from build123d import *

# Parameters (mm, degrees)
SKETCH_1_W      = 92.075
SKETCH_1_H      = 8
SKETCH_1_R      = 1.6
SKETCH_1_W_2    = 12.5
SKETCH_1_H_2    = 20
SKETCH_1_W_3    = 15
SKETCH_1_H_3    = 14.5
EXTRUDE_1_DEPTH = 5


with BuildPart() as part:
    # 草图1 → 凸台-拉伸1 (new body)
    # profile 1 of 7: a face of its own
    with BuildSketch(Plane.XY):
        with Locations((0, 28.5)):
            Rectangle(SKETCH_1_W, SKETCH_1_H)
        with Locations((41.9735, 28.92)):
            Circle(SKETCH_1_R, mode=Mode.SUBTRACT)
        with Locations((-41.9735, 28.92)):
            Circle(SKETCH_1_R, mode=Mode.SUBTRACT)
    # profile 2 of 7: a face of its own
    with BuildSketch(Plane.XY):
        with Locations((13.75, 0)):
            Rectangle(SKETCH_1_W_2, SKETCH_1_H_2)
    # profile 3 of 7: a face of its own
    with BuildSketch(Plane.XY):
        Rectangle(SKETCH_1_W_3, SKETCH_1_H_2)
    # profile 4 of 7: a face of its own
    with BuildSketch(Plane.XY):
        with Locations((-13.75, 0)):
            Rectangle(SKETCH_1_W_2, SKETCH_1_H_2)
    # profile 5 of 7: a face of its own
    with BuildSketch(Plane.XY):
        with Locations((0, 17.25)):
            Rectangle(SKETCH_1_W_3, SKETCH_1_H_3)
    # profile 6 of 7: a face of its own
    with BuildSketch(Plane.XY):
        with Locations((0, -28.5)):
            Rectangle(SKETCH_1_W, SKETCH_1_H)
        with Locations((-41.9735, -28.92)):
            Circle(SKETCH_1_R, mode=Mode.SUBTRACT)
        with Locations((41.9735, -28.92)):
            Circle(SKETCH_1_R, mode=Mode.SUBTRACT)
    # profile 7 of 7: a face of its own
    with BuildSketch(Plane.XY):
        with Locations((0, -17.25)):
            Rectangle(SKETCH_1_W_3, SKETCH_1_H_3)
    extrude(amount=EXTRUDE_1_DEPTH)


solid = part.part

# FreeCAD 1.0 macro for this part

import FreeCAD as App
import Part
import Sketcher

V = App.Vector
Q = App.Units.Quantity


def add_polygon(sketch, points):
    """Adds a closed chain of lines whose ends are joined by coincident constraints."""
    first, n = sketch.GeometryCount, len(points)
    for a, b in zip(points, points[1:] + points[:1]):
        sketch.addGeometry(Part.LineSegment(App.Vector(*a, 0), App.Vector(*b, 0)), False)
    for i in range(n):
        sketch.addConstraint(Sketcher.Constraint("Coincident", first + i, 2, first + (i + 1) % n, 1))

doc = App.newDocument("Part")
params = doc.addObject("Spreadsheet::Sheet", "Params")
for row, (alias, value) in enumerate([
    ("sketch1_diameter", "3.2 mm"),
    ("sketch1_height", "8 mm"),
    ("sketch1_height2", "20 mm"),
    ("sketch1_width", "12.5 mm"),
    ("sketch1_height3", "14.5 mm"),
    ("pad1_length", "5 mm"),
], start=1):
    params.set(f"A{row}", alias)
    params.set(f"B{row}", "=" + value)
    params.setAlias(f"B{row}", alias)

body = doc.addObject("PartDesign::Body", "Body")

# Sketch on XY plane
sketch1 = body.newObject("Sketcher::SketchObject", "Sketch")
sketch1.AttachmentSupport = (doc.getObject("XY_Plane"), [""])
sketch1.MapMode = "FlatFace"
add_polygon(sketch1, [(-46.0375, 32.5), (-46.0375, 24.5), (-7.5, 24.5), (-7.5, 10), (-20, 10), (-20, -10), (-7.5, -10), (-7.5, -24.5), (-46.0375, -24.5), (-46.0375, -32.5), (46.0375, -32.5), (46.0375, -24.5), (7.5, -24.5), (7.5, -10), (20, -10), (20, 10), (7.5, 10), (7.5, 24.5), (46.0375, 24.5), (46.0375, 32.5)])  # lines 0-19
sketch1.addGeometry(Part.Circle(V(-41.9735, 28.92, 0), V(0, 0, 1), 1.6), False)  # 20
sketch1.addGeometry(Part.Circle(V(41.9735, 28.92, 0), V(0, 0, 1), 1.6), False)  # 21
sketch1.addGeometry(Part.Circle(V(41.9735, -28.92, 0), V(0, 0, 1), 1.6), False)  # 22
sketch1.addGeometry(Part.Circle(V(-41.9735, -28.92, 0), V(0, 0, 1), 1.6), False)  # 23
sketch1.addConstraint(Sketcher.Constraint("Vertical", 0))
sketch1.addConstraint(Sketcher.Constraint("Horizontal", 1))
sketch1.addConstraint(Sketcher.Constraint("Vertical", 2))
sketch1.addConstraint(Sketcher.Constraint("Horizontal", 3))
sketch1.addConstraint(Sketcher.Constraint("Vertical", 4))
sketch1.addConstraint(Sketcher.Constraint("Horizontal", 5))
sketch1.addConstraint(Sketcher.Constraint("Vertical", 6))
sketch1.addConstraint(Sketcher.Constraint("Horizontal", 7))
sketch1.addConstraint(Sketcher.Constraint("Vertical", 8))
sketch1.addConstraint(Sketcher.Constraint("Horizontal", 9))
sketch1.addConstraint(Sketcher.Constraint("Vertical", 10))
sketch1.addConstraint(Sketcher.Constraint("Horizontal", 11))
sketch1.addConstraint(Sketcher.Constraint("Vertical", 12))
sketch1.addConstraint(Sketcher.Constraint("Horizontal", 13))
sketch1.addConstraint(Sketcher.Constraint("Vertical", 14))
sketch1.addConstraint(Sketcher.Constraint("Horizontal", 15))
sketch1.addConstraint(Sketcher.Constraint("Vertical", 16))
sketch1.addConstraint(Sketcher.Constraint("Horizontal", 17))
sketch1.addConstraint(Sketcher.Constraint("Vertical", 18))
sketch1.addConstraint(Sketcher.Constraint("Horizontal", 19))
sketch1.addConstraint(Sketcher.Constraint("Equal", 20, 21))
sketch1.addConstraint(Sketcher.Constraint("Equal", 21, 22))
sketch1.addConstraint(Sketcher.Constraint("Equal", 22, 23))
sketch1.addConstraint(Sketcher.Constraint("Symmetric", 20, 3, 22, 3, -1, 1))
sketch1.addConstraint(Sketcher.Constraint("Symmetric", 21, 3, 23, 3, -1, 1))
sketch1.addConstraint(Sketcher.Constraint("Symmetric", 0, 2, 10, 2, -1, 1))
sketch1.addConstraint(Sketcher.Constraint("Symmetric", 2, 2, 12, 2, -1, 1))
sketch1.addConstraint(Sketcher.Constraint("Symmetric", 4, 2, 14, 2, -1, 1))
sketch1.addConstraint(Sketcher.Constraint("Symmetric", 6, 2, 16, 2, -1, 1))
sketch1.addConstraint(Sketcher.Constraint("Symmetric", 8, 2, 18, 2, -1, 1))
sketch1.addConstraint(Sketcher.Constraint("Symmetric", 20, 3, 21, 3, -2))
sketch1.addConstraint(Sketcher.Constraint("Symmetric", 7, 2, 10, 2, -2))
sketch1.addConstraint(Sketcher.Constraint("Symmetric", 5, 2, 12, 2, -2))
sketch1.addConstraint(Sketcher.Constraint("Diameter", 20, Q("3.2 mm")))
sketch1.addConstraint(Sketcher.Constraint("DistanceY", 0, 2, 0, 1, Q("8 mm")))
sketch1.addConstraint(Sketcher.Constraint("DistanceY", 4, 2, 4, 1, Q("20 mm")))
sketch1.addConstraint(Sketcher.Constraint("DistanceX", 3, 2, 3, 1, Q("12.5 mm")))
sketch1.addConstraint(Sketcher.Constraint("DistanceY", 2, 2, 2, 1, Q("14.5 mm")))
sketch1.addConstraint(Sketcher.Constraint("DistanceX", 3, 2, -1, 1, Q("20 mm")))
sketch1.addConstraint(Sketcher.Constraint("DistanceX", 9, 1, 9, 2, Q("92.075 mm")))
sketch1.addConstraint(Sketcher.Constraint("DistanceY", -1, 1, 20, 3, Q("28.92 mm")))
sketch1.addConstraint(Sketcher.Constraint("DistanceX", 20, 3, 21, 3, Q("83.947 mm")))
sketch1.setExpression("Constraints[53]", "Params.sketch1_diameter")
sketch1.setExpression("Constraints[54]", "Params.sketch1_height")
sketch1.setExpression("Constraints[55]", "Params.sketch1_height2")
sketch1.setExpression("Constraints[56]", "Params.sketch1_width")
sketch1.setExpression("Constraints[57]", "Params.sketch1_height3")
pad1 = body.newObject("PartDesign::Pad", "Pad")
pad1.Profile = sketch1
pad1.setExpression("Length", "Params.pad1_length")

doc.recompute()
